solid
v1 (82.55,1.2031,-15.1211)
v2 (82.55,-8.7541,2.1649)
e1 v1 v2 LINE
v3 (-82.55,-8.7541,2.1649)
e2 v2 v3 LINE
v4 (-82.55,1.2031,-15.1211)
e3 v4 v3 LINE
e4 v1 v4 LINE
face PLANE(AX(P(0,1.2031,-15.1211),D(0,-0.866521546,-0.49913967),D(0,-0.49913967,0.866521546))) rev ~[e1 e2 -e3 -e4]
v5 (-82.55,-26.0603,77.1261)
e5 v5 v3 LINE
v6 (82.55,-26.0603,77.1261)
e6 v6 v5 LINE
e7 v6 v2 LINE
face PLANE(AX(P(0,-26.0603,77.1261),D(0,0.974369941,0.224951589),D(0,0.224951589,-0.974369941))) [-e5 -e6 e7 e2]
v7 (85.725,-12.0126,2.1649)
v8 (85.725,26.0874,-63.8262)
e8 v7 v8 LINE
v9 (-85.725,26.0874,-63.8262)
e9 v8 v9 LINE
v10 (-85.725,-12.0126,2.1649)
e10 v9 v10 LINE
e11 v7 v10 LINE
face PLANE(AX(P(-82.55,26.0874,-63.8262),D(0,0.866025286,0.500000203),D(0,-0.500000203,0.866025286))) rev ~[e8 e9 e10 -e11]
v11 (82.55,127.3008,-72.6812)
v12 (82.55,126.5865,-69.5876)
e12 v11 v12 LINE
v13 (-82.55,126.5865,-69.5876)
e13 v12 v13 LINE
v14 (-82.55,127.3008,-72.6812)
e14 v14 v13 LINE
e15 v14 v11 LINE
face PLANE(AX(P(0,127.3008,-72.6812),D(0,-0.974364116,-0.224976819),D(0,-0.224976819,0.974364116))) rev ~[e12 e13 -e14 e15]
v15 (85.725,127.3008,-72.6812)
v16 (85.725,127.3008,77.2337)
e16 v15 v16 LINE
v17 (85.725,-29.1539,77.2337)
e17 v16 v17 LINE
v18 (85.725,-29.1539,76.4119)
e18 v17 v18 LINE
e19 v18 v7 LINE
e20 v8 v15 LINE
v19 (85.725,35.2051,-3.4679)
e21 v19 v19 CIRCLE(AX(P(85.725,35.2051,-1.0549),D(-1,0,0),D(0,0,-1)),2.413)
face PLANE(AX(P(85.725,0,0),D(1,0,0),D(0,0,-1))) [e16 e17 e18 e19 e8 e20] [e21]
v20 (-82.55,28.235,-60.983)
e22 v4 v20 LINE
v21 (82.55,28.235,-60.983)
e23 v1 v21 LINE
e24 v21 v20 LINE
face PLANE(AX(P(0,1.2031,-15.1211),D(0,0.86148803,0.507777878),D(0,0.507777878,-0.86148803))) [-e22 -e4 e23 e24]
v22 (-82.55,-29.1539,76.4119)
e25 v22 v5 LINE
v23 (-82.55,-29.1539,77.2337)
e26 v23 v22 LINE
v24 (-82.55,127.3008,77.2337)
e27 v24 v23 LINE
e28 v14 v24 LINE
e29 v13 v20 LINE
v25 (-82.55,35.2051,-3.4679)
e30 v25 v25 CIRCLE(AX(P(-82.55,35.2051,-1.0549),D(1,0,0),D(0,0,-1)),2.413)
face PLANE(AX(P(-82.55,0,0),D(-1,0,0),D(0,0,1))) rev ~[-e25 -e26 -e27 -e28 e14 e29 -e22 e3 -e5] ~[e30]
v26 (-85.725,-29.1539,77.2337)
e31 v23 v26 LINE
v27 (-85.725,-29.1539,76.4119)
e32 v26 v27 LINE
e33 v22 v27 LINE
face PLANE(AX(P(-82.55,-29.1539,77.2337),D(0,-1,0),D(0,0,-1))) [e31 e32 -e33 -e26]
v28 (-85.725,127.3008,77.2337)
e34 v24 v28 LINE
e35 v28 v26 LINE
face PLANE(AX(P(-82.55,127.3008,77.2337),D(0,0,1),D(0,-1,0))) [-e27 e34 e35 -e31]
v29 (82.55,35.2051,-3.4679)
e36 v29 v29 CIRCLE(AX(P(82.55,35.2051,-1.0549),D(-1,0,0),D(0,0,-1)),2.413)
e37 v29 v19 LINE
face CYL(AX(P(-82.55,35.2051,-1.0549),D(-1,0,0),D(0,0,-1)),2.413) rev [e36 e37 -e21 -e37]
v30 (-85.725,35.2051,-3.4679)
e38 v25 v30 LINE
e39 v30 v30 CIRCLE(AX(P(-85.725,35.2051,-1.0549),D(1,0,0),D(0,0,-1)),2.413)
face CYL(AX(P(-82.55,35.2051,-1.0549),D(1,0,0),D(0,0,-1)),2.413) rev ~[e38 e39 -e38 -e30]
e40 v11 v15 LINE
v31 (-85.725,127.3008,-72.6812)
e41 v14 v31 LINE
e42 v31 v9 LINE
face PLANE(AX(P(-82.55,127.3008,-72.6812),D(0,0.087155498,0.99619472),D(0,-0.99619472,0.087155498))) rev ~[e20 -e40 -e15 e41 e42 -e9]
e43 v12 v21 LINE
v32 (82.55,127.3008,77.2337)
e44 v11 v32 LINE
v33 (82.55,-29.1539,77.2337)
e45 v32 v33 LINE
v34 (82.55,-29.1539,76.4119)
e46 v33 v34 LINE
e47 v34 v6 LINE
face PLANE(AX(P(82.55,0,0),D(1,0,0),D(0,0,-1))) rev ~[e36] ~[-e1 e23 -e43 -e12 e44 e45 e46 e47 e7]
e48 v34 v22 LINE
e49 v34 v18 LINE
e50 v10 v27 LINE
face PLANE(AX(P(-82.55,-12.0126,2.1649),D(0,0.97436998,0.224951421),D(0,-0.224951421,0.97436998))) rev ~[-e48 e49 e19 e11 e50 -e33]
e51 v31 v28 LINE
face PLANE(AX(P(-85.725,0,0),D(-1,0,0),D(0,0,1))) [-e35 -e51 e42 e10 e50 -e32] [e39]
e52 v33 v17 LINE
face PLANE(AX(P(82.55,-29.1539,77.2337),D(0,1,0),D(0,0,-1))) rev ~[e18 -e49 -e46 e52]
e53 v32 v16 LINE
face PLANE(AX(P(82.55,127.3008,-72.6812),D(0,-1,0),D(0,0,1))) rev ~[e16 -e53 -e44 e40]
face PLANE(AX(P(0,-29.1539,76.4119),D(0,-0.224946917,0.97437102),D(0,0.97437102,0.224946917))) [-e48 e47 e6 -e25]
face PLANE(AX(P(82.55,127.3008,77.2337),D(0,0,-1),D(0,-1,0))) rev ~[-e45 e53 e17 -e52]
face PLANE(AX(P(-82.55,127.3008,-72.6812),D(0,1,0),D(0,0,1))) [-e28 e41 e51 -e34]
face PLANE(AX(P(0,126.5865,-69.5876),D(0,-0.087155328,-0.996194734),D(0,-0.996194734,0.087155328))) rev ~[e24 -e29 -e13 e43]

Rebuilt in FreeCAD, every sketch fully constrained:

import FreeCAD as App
import Part
import Sketcher

V = App.Vector
Q = App.Units.Quantity


def add_polygon(sketch, points):
    """Adds a closed chain of lines whose ends are joined by coincident constraints."""
    first, n = sketch.GeometryCount, len(points)
    for a, b in zip(points, points[1:] + points[:1]):
        sketch.addGeometry(Part.LineSegment(App.Vector(*a, 0), App.Vector(*b, 0)), False)
    for i in range(n):
        sketch.addConstraint(Sketcher.Constraint("Coincident", first + i, 2, first + (i + 1) % n, 1))

doc = App.newDocument("Part")
params = doc.addObject("Spreadsheet::Sheet", "Params")
for row, (alias, value) in enumerate([
    ("sketch1_length", "3 in"),
    ("sketch1_length2", "4 in"),
    ("sketch1_length3", "0.125 in"),
    ("pad1_length", "6.5 in"),
    ("sketch2_length", "3 in"),
    ("sketch2_length2", "4 in"),
    ("pad2_length", "0.125 in"),
    ("sketch3_length", "4 in"),
    ("sketch3_length2", "3 in"),
    ("pad3_length", "0.125 in"),
    ("sketch4_diameter", "0.19 in"),
], start=1):
    params.set(f"A{row}", alias)
    params.set(f"B{row}", "=" + value)
    params.setAlias(f"B{row}", alias)

body = doc.addObject("PartDesign::Body", "Body")

sketch1 = body.newObject("Sketcher::SketchObject", "Sketch")
sketch1.AttachmentSupport = (doc.getObject("YZ_Plane"), [""])
sketch1.MapMode = "FlatFace"
add_polygon(sketch1, [(-29.2, 76.4), (-12, 2.2), (26.1, -63.8), (127.3, -72.7), (126.6, -69.6), (28.2, -61), (1.2, -15.1), (-8.8, 2.2), (-26.1, 77.1)])
sketch1.addConstraint([
    Sketcher.Constraint("Parallel", 0, 3),
    Sketcher.Constraint("Parallel", 2, 4),
    Sketcher.Constraint("Parallel", 3, 7),
    Sketcher.Constraint("Perpendicular", 7, 8),
    Sketcher.Constraint("Horizontal", 0, 2, 6, 2),
    Sketcher.Constraint("Equal", 0, 1),
    Sketcher.Constraint("Equal", 3, 8),
    Sketcher.Constraint("Distance", 0, Q("3 in")),
    Sketcher.Constraint("Distance", 2, Q("4 in")),
    Sketcher.Constraint("Angle", 1, Q("-60 deg")),
    Sketcher.Constraint("Angle", 7, Q("103 deg")),
    Sketcher.Constraint("Distance", 3, Q("0.125 in")),
    Sketcher.Constraint("Angle", 2, Q("-5 deg")),
    Sketcher.Constraint("DistanceX", 7, 2, -1, 1, Q("1.026 in")),
    Sketcher.Constraint("Distance", 4, Q("3.8869 in")),
    Sketcher.Constraint("Distance", 5, Q("2.0959 in")),
    Sketcher.Constraint("DistanceY", 4, 2, -1, 1, Q("2.4009 in")),
    Sketcher.Constraint("DistanceX", 0, 2, 5, 2, Q("0.5203 in")),
])
sketch1.setExpression("Constraints[16]", "Params.sketch1_length")
sketch1.setExpression("Constraints[17]", "Params.sketch1_length2")
sketch1.setExpression("Constraints[20]", "Params.sketch1_length3")
pad1 = body.newObject("PartDesign::Pad", "Pad")
pad1.Profile = sketch1
pad1.setExpression("Length", "Params.pad1_length")
pad1.Midplane = True

sketch2 = body.newObject("Sketcher::SketchObject", "Sketch001")
sketch2.AttachmentSupport = (doc.getObject("YZ_Plane"), [""])
sketch2.MapMode = "FlatFace"
sketch2.AttachmentOffset = App.Placement(V(0, 0, 3.25 * 25.4), App.Rotation())
add_polygon(sketch2, [(-12, 2.2), (26.1, -63.8), (127.3, -72.7), (127.3, 77.2), (-29.2, 77.2), (-29.2, 76.4)])
sketch2.addConstraint([
    Sketcher.Constraint("Vertical", 2),
    Sketcher.Constraint("Horizontal", 3),
    Sketcher.Constraint("Vertical", 4),
    Sketcher.Constraint("Equal", 0, 5),
    Sketcher.Constraint("Distance", 0, Q("3 in")),
    Sketcher.Constraint("Distance", 1, Q("4 in")),
    Sketcher.Constraint("Angle", 0, Q("-60 deg")),
    Sketcher.Constraint("Angle", 1, Q("-5 deg")),
    Sketcher.Constraint("Angle", 5, Q("-77 deg")),
    Sketcher.Constraint("DistanceY", 2, 1, 2, 2, Q("149.915 mm")),
    Sketcher.Constraint("DistanceY", -1, 1, 2, 2, Q("3.0407 in")),
    Sketcher.Constraint("DistanceX", 3, 2, -1, 1, Q("1.1478 in")),
])
sketch2.setExpression("Constraints[10]", "Params.sketch2_length")
sketch2.setExpression("Constraints[11]", "Params.sketch2_length2")
pad2 = body.newObject("PartDesign::Pad", "Pad001")
pad2.Profile = sketch2
pad2.setExpression("Length", "Params.pad2_length")

sketch3 = body.newObject("Sketcher::SketchObject", "Sketch002")
sketch3.AttachmentSupport = (doc.getObject("YZ_Plane"), [""])
sketch3.MapMode = "FlatFace"
sketch3.AttachmentOffset = App.Placement(V(0, 0, -3.25 * 25.4), App.Rotation())
add_polygon(sketch3, [(127.3, 77.2), (127.3, -72.7), (26.1, -63.8), (-12, 2.2), (-29.2, 76.4), (-29.2, 77.2)])
sketch3.addConstraint([
    Sketcher.Constraint("Vertical", 0),
    Sketcher.Constraint("Vertical", 4),
    Sketcher.Constraint("Horizontal", 5),
    Sketcher.Constraint("Equal", 2, 3),
    Sketcher.Constraint("Distance", 1, Q("4 in")),
    Sketcher.Constraint("Distance", 2, Q("3 in")),
    Sketcher.Constraint("Angle", 1, Q("175 deg")),
    Sketcher.Constraint("Angle", 2, Q("120 deg")),
    Sketcher.Constraint("Angle", 3, Q("103 deg")),
    Sketcher.Constraint("DistanceY", 0, 2, 0, 1, Q("149.915 mm")),
    Sketcher.Constraint("DistanceX", 3, 2, -1, 1, Q("1.1478 in")),
    Sketcher.Constraint("DistanceY", -1, 1, 4, 2, Q("3.0407 in")),
])
sketch3.setExpression("Constraints[10]", "Params.sketch3_length")
sketch3.setExpression("Constraints[11]", "Params.sketch3_length2")
pad3 = body.newObject("PartDesign::Pad", "Pad002")
pad3.Profile = sketch3
pad3.setExpression("Length", "Params.pad3_length")
pad3.Reversed = True

sketch4 = body.newObject("Sketcher::SketchObject", "Sketch003")
sketch4.AttachmentSupport = (doc.getObject("YZ_Plane"), [""])
sketch4.MapMode = "FlatFace"
sketch4.AttachmentOffset = App.Placement(V(0, 0, -3.25 * 25.4), App.Rotation())
sketch4.addGeometry(Part.Circle(V(35.2, -1.1, 0), V(0, 0, 1), 2.4), False)
sketch4.addConstraint([
    Sketcher.Constraint("Diameter", 0, Q("0.19 in")),
    Sketcher.Constraint("DistanceX", -1, 1, 0, 3, Q("35.205 mm")),
    Sketcher.Constraint("DistanceY", 0, 3, -1, 1, Q("1.055 mm")),
])
sketch4.setExpression("Constraints[0]", "Params.sketch4_diameter")
pocket1 = body.newObject("PartDesign::Pocket", "Pocket")
pocket1.Profile = sketch4
pocket1.Type = "ThroughAll"
pocket1.Midplane = True

doc.recompute()
